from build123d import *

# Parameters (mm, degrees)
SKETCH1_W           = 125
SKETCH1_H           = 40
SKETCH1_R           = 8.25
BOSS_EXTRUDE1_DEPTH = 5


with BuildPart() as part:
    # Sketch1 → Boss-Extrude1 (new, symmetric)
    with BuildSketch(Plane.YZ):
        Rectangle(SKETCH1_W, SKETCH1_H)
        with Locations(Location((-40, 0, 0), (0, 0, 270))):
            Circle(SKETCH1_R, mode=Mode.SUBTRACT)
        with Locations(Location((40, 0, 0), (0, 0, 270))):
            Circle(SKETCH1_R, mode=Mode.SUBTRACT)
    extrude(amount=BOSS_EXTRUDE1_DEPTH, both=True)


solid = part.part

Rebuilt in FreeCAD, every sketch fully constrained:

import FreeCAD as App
import Part
import Sketcher


def add_polygon(sketch, points):
    """Adds a closed chain of lines whose ends are joined by coincident constraints."""
    first, n = sketch.GeometryCount, len(points)
    for a, b in zip(points, points[1:] + points[:1]):
        sketch.addGeometry(Part.LineSegment(App.Vector(*a, 0), App.Vector(*b, 0)), False)
    for i in range(n):
        sketch.addConstraint(Sketcher.Constraint("Coincident", first + i, 2, first + (i + 1) % n, 1))

doc = App.newDocument("Part")
body = doc.addObject("PartDesign::Body", "Body")

# Sketch on YZ plane
sketch1 = doc.addObject("Sketcher::SketchObject", "Sketch")
body.addObject(sketch1)
sketch1.AttachmentSupport = (doc.YZ_Plane, [""])
sketch1.MapMode = "FlatFace"
add_polygon(sketch1, [(-62, 20), (-62, -20), (62, -20), (62, 20)])  # lines 0-3
sketch1.addGeometry(Part.Circle(App.Vector(-40, 0, 0), App.Vector(0, 0, 1), 8), False)  # 4
sketch1.addGeometry(Part.Circle(App.Vector(40, 0, 0), App.Vector(0, 0, 1), 8), False)  # 5
sketch1.addConstraint([
    Sketcher.Constraint("Vertical", 0),
    Sketcher.Constraint("Horizontal", 1),
    Sketcher.Constraint("Vertical", 2),
    Sketcher.Constraint("Horizontal", 3),
    Sketcher.Constraint("Equal", 4, 5),
    Sketcher.Constraint("Symmetric", 4, 3, 5, 3, -1, 1),
    Sketcher.Constraint("Symmetric", 0, 2, 2, 2, -1, 1),
    Sketcher.Constraint("PointOnObject", 4, 3, -1),
    Sketcher.Constraint("Diameter", 4, 16.5),
    Sketcher.Constraint("DistanceX", 1, 1, 1, 2, 125.0),
    Sketcher.Constraint("DistanceY", 0, 2, 0, 1, 40.0),
    Sketcher.Constraint("DistanceX", 4, 3, -1, 1, 40.0),
])
pad1 = doc.addObject("PartDesign::Pad", "Pad")
body.addObject(pad1)
pad1.Profile = sketch1
pad1.Length = 10
pad1.Midplane = True

doc.recompute()
